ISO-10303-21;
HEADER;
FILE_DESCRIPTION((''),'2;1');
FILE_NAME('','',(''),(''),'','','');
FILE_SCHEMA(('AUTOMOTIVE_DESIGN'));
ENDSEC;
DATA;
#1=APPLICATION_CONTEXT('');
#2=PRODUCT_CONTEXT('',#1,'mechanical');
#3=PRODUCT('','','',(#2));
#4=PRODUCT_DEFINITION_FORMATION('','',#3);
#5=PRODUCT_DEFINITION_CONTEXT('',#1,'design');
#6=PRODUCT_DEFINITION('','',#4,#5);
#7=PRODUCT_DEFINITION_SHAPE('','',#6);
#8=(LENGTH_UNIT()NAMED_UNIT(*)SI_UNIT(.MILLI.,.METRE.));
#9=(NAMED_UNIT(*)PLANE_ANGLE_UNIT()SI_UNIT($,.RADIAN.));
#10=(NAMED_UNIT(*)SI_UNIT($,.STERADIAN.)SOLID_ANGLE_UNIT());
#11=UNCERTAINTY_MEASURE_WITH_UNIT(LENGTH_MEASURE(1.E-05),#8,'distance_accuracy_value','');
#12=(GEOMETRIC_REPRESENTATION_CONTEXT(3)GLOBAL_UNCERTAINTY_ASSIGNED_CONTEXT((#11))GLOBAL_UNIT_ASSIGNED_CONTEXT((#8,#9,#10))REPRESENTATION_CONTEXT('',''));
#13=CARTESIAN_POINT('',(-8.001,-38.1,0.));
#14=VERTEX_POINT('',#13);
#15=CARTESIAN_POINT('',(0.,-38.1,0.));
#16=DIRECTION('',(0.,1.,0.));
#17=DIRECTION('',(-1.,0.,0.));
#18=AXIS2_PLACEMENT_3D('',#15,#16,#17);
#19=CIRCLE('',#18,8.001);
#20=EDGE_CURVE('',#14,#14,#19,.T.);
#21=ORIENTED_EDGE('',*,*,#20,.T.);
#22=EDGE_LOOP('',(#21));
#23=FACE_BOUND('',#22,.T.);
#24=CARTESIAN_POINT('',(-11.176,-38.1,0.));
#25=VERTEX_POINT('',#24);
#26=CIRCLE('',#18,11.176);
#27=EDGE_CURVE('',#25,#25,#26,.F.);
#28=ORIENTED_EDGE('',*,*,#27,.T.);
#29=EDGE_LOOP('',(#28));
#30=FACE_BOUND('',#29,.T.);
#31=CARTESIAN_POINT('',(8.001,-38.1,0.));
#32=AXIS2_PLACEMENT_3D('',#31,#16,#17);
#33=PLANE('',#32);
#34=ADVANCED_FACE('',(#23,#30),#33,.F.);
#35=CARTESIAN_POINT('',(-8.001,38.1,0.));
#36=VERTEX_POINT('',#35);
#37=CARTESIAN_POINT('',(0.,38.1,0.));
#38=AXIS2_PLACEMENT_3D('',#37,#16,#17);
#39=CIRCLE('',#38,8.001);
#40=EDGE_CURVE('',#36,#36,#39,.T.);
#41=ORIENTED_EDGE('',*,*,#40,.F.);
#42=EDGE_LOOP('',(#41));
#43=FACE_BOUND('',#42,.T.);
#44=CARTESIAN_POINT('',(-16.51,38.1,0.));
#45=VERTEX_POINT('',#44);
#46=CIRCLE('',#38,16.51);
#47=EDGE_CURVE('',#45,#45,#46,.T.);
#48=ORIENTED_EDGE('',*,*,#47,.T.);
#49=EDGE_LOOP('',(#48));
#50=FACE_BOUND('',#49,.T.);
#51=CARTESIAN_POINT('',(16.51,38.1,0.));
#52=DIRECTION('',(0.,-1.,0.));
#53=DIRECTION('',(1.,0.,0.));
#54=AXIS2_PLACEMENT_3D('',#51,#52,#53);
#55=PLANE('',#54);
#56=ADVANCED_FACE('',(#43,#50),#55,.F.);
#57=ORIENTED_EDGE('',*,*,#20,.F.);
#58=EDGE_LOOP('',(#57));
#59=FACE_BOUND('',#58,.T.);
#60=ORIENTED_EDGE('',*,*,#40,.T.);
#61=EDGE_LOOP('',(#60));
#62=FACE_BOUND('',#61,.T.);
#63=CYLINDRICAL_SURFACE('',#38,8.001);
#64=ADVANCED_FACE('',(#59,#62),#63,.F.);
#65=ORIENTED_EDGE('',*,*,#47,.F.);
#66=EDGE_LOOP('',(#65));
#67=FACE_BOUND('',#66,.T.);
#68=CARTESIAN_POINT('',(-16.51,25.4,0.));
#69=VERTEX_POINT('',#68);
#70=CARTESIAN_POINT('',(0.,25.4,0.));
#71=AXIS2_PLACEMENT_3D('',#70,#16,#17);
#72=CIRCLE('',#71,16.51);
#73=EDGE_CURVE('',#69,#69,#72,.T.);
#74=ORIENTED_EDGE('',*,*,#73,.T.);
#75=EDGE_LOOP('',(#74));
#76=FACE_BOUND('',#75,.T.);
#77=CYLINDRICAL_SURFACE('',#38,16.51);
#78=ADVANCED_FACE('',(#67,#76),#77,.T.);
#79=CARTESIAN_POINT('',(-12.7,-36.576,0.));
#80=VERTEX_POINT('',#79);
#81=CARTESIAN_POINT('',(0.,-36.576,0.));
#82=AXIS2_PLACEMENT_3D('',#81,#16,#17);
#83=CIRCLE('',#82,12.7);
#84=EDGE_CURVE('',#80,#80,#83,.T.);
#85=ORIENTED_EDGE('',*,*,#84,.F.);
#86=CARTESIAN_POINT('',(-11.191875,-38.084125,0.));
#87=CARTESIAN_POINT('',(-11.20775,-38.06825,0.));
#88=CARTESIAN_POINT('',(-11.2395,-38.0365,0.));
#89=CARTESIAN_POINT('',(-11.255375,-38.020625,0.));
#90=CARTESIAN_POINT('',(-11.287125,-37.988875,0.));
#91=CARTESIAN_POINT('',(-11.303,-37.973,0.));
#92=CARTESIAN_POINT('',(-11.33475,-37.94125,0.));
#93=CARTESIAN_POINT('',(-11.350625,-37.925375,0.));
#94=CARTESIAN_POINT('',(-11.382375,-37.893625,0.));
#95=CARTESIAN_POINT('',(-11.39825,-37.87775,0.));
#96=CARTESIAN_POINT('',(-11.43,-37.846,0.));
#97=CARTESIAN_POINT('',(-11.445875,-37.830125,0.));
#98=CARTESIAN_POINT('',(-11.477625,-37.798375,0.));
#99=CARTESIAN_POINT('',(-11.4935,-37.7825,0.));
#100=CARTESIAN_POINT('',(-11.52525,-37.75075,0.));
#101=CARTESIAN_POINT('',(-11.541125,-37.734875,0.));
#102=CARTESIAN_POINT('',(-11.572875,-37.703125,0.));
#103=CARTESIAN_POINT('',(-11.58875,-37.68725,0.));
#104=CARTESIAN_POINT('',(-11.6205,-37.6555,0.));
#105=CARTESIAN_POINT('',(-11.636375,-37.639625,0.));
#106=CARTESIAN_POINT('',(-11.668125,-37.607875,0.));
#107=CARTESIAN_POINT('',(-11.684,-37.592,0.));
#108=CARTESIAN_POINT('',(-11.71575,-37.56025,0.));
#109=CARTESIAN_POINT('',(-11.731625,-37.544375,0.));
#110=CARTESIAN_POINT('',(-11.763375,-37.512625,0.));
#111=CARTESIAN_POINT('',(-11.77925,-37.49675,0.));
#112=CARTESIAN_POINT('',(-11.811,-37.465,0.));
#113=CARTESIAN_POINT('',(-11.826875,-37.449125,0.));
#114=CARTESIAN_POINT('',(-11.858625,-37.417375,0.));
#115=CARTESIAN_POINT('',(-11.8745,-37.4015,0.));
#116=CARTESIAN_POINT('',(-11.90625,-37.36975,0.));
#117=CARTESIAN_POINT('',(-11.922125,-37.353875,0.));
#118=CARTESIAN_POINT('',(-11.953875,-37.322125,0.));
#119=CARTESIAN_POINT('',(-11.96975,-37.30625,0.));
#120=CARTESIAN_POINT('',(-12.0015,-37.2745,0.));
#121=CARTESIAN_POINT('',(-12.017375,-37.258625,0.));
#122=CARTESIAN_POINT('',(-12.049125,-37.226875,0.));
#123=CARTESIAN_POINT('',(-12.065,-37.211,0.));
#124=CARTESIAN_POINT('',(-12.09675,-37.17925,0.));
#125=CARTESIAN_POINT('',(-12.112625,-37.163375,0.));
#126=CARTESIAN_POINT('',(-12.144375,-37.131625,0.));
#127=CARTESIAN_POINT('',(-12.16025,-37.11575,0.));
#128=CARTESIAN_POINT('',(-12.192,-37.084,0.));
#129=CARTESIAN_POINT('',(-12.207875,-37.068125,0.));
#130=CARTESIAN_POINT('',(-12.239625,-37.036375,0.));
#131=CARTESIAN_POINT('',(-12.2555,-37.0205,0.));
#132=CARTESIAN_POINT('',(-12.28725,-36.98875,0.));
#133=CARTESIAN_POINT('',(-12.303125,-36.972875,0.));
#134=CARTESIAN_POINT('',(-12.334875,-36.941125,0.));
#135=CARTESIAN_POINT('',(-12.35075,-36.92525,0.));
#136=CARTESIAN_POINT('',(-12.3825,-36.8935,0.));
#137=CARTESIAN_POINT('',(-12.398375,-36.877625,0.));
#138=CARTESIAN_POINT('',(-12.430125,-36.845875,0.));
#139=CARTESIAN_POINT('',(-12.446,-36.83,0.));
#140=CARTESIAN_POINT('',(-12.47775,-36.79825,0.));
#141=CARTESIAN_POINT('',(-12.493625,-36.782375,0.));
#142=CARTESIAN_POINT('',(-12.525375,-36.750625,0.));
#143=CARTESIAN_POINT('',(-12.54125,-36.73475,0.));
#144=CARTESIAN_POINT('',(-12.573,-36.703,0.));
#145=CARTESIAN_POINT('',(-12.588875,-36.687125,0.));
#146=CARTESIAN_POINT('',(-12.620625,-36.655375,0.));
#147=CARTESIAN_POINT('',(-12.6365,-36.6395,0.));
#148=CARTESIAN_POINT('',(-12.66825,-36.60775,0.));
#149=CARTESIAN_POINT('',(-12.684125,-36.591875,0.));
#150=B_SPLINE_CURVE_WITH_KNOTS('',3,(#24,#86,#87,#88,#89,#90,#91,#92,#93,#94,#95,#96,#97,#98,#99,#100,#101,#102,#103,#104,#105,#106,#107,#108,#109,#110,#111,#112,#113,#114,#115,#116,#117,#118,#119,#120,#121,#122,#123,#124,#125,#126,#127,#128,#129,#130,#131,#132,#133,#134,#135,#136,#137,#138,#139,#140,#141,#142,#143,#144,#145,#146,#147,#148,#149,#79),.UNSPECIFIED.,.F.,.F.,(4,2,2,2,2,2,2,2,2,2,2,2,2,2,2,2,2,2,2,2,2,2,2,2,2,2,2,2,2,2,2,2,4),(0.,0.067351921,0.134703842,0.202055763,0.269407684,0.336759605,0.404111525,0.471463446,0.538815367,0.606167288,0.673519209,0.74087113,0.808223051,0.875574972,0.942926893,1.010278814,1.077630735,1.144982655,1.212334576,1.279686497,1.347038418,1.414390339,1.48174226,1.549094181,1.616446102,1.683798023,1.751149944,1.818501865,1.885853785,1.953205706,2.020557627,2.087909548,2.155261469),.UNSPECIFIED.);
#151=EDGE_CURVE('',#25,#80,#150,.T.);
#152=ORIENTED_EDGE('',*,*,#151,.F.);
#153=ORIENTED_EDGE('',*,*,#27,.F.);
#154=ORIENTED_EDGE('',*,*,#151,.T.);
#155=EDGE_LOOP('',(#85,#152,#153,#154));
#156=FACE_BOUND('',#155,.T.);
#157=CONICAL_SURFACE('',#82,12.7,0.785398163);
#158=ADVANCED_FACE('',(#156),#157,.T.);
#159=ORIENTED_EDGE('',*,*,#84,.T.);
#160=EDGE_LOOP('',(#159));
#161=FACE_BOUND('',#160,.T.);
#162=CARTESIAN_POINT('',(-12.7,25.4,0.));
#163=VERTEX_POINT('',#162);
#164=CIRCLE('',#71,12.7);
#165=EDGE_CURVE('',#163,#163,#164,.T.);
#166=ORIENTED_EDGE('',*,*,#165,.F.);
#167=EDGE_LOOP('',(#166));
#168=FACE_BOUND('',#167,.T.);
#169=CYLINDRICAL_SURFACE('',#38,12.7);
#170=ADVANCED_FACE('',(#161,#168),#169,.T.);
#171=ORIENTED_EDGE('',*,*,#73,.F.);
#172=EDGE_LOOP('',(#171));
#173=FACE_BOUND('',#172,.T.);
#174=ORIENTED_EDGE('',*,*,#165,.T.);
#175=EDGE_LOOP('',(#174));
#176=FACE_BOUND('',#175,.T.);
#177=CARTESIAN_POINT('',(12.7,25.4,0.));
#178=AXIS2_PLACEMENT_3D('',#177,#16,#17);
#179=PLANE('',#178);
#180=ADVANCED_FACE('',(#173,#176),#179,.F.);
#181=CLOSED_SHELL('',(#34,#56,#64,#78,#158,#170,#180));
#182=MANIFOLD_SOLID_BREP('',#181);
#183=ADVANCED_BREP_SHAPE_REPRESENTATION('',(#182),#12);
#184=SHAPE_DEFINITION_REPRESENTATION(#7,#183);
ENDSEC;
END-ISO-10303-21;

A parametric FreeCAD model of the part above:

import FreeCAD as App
import Part
import Sketcher

V = App.Vector
Q = App.Units.Quantity


def edges_at(feature, points):
    """Names of the edges that pass closest to the given points."""
    edges = feature.Shape.Edges
    near = lambda p: min(range(len(edges)), key=lambda i: edges[i].distToShape(Part.Vertex(*p))[0])
    return sorted({f"Edge{near(p) + 1}" for p in points})

doc = App.newDocument("Part")
body = doc.addObject("PartDesign::Body", "Body")

# Sketch on XY plane
sketch1 = doc.addObject("Sketcher::SketchObject", "Sketch")
body.addObject(sketch1)
sketch1.AttachmentSupport = (doc.XY_Plane, [""])
sketch1.MapMode = "FlatFace"
sketch1.addGeometry(Part.LineSegment(V(12.7, -38.1, 0), V(12.7, 25.4, 0)), False)
sketch1.addGeometry(Part.LineSegment(V(12.7, 25.4, 0), V(16.51, 25.4, 0)), False)
sketch1.addGeometry(Part.LineSegment(V(16.51, 25.4, 0), V(16.51, 38.1, 0)), False)
sketch1.addGeometry(Part.LineSegment(V(16.51, 38.1, 0), V(8.001, 38.1, 0)), False)
sketch1.addGeometry(Part.LineSegment(V(8.001, 38.1, 0), V(8.001, -38.1, 0)), False)
sketch1.addGeometry(Part.LineSegment(V(8.001, -38.1, 0), V(12.7, -38.1, 0)), False)
sketch1.addConstraint(Sketcher.Constraint("Coincident", 0, 2, 1, 1))
sketch1.addConstraint(Sketcher.Constraint("Coincident", 1, 2, 2, 1))
sketch1.addConstraint(Sketcher.Constraint("Coincident", 2, 2, 3, 1))
sketch1.addConstraint(Sketcher.Constraint("Coincident", 3, 2, 4, 1))
sketch1.addConstraint(Sketcher.Constraint("Coincident", 4, 2, 5, 1))
sketch1.addConstraint(Sketcher.Constraint("Coincident", 5, 2, 0, 1))
sketch1.addConstraint(Sketcher.Constraint("Vertical", 0))
sketch1.addConstraint(Sketcher.Constraint("Horizontal", 1))
sketch1.addConstraint(Sketcher.Constraint("Vertical", 2))
sketch1.addConstraint(Sketcher.Constraint("Horizontal", 3))
sketch1.addConstraint(Sketcher.Constraint("Vertical", 4))
sketch1.addConstraint(Sketcher.Constraint("Horizontal", 5))
sketch1.addConstraint(Sketcher.Constraint("DistanceY", 4, 2, 4, 1, Q("3 in")))
sketch1.addConstraint(Sketcher.Constraint("DistanceY", 0, 1, 0, 2, Q("2.5 in")))
sketch1.addConstraint(Sketcher.Constraint("DistanceY", -1, 1, 0, 2, Q("1 in")))
sketch1.addConstraint(Sketcher.Constraint("DistanceX", 1, 1, 1, 2, Q("0.15 in")))
sketch1.addConstraint(Sketcher.Constraint("DistanceX", -1, 1, 0, 2, Q("0.5 in")))
sketch1.addConstraint(Sketcher.Constraint("DistanceX", 3, 2, 3, 1, Q("0.335 in")))
revolution = doc.addObject("PartDesign::Revolution", "Revolution")
body.addObject(revolution)
revolution.Profile = sketch1
revolution.ReferenceAxis = (sketch1, ["V_Axis"])
revolution.Angle = 360
doc.recompute()

chamfer = doc.addObject("PartDesign::Chamfer", "Chamfer")
body.addObject(chamfer)
chamfer.Base = (revolution, edges_at(revolution, [(12.7, -38.1, 0)]))
chamfer.Size = Q("0.06 in")

doc.recompute()
